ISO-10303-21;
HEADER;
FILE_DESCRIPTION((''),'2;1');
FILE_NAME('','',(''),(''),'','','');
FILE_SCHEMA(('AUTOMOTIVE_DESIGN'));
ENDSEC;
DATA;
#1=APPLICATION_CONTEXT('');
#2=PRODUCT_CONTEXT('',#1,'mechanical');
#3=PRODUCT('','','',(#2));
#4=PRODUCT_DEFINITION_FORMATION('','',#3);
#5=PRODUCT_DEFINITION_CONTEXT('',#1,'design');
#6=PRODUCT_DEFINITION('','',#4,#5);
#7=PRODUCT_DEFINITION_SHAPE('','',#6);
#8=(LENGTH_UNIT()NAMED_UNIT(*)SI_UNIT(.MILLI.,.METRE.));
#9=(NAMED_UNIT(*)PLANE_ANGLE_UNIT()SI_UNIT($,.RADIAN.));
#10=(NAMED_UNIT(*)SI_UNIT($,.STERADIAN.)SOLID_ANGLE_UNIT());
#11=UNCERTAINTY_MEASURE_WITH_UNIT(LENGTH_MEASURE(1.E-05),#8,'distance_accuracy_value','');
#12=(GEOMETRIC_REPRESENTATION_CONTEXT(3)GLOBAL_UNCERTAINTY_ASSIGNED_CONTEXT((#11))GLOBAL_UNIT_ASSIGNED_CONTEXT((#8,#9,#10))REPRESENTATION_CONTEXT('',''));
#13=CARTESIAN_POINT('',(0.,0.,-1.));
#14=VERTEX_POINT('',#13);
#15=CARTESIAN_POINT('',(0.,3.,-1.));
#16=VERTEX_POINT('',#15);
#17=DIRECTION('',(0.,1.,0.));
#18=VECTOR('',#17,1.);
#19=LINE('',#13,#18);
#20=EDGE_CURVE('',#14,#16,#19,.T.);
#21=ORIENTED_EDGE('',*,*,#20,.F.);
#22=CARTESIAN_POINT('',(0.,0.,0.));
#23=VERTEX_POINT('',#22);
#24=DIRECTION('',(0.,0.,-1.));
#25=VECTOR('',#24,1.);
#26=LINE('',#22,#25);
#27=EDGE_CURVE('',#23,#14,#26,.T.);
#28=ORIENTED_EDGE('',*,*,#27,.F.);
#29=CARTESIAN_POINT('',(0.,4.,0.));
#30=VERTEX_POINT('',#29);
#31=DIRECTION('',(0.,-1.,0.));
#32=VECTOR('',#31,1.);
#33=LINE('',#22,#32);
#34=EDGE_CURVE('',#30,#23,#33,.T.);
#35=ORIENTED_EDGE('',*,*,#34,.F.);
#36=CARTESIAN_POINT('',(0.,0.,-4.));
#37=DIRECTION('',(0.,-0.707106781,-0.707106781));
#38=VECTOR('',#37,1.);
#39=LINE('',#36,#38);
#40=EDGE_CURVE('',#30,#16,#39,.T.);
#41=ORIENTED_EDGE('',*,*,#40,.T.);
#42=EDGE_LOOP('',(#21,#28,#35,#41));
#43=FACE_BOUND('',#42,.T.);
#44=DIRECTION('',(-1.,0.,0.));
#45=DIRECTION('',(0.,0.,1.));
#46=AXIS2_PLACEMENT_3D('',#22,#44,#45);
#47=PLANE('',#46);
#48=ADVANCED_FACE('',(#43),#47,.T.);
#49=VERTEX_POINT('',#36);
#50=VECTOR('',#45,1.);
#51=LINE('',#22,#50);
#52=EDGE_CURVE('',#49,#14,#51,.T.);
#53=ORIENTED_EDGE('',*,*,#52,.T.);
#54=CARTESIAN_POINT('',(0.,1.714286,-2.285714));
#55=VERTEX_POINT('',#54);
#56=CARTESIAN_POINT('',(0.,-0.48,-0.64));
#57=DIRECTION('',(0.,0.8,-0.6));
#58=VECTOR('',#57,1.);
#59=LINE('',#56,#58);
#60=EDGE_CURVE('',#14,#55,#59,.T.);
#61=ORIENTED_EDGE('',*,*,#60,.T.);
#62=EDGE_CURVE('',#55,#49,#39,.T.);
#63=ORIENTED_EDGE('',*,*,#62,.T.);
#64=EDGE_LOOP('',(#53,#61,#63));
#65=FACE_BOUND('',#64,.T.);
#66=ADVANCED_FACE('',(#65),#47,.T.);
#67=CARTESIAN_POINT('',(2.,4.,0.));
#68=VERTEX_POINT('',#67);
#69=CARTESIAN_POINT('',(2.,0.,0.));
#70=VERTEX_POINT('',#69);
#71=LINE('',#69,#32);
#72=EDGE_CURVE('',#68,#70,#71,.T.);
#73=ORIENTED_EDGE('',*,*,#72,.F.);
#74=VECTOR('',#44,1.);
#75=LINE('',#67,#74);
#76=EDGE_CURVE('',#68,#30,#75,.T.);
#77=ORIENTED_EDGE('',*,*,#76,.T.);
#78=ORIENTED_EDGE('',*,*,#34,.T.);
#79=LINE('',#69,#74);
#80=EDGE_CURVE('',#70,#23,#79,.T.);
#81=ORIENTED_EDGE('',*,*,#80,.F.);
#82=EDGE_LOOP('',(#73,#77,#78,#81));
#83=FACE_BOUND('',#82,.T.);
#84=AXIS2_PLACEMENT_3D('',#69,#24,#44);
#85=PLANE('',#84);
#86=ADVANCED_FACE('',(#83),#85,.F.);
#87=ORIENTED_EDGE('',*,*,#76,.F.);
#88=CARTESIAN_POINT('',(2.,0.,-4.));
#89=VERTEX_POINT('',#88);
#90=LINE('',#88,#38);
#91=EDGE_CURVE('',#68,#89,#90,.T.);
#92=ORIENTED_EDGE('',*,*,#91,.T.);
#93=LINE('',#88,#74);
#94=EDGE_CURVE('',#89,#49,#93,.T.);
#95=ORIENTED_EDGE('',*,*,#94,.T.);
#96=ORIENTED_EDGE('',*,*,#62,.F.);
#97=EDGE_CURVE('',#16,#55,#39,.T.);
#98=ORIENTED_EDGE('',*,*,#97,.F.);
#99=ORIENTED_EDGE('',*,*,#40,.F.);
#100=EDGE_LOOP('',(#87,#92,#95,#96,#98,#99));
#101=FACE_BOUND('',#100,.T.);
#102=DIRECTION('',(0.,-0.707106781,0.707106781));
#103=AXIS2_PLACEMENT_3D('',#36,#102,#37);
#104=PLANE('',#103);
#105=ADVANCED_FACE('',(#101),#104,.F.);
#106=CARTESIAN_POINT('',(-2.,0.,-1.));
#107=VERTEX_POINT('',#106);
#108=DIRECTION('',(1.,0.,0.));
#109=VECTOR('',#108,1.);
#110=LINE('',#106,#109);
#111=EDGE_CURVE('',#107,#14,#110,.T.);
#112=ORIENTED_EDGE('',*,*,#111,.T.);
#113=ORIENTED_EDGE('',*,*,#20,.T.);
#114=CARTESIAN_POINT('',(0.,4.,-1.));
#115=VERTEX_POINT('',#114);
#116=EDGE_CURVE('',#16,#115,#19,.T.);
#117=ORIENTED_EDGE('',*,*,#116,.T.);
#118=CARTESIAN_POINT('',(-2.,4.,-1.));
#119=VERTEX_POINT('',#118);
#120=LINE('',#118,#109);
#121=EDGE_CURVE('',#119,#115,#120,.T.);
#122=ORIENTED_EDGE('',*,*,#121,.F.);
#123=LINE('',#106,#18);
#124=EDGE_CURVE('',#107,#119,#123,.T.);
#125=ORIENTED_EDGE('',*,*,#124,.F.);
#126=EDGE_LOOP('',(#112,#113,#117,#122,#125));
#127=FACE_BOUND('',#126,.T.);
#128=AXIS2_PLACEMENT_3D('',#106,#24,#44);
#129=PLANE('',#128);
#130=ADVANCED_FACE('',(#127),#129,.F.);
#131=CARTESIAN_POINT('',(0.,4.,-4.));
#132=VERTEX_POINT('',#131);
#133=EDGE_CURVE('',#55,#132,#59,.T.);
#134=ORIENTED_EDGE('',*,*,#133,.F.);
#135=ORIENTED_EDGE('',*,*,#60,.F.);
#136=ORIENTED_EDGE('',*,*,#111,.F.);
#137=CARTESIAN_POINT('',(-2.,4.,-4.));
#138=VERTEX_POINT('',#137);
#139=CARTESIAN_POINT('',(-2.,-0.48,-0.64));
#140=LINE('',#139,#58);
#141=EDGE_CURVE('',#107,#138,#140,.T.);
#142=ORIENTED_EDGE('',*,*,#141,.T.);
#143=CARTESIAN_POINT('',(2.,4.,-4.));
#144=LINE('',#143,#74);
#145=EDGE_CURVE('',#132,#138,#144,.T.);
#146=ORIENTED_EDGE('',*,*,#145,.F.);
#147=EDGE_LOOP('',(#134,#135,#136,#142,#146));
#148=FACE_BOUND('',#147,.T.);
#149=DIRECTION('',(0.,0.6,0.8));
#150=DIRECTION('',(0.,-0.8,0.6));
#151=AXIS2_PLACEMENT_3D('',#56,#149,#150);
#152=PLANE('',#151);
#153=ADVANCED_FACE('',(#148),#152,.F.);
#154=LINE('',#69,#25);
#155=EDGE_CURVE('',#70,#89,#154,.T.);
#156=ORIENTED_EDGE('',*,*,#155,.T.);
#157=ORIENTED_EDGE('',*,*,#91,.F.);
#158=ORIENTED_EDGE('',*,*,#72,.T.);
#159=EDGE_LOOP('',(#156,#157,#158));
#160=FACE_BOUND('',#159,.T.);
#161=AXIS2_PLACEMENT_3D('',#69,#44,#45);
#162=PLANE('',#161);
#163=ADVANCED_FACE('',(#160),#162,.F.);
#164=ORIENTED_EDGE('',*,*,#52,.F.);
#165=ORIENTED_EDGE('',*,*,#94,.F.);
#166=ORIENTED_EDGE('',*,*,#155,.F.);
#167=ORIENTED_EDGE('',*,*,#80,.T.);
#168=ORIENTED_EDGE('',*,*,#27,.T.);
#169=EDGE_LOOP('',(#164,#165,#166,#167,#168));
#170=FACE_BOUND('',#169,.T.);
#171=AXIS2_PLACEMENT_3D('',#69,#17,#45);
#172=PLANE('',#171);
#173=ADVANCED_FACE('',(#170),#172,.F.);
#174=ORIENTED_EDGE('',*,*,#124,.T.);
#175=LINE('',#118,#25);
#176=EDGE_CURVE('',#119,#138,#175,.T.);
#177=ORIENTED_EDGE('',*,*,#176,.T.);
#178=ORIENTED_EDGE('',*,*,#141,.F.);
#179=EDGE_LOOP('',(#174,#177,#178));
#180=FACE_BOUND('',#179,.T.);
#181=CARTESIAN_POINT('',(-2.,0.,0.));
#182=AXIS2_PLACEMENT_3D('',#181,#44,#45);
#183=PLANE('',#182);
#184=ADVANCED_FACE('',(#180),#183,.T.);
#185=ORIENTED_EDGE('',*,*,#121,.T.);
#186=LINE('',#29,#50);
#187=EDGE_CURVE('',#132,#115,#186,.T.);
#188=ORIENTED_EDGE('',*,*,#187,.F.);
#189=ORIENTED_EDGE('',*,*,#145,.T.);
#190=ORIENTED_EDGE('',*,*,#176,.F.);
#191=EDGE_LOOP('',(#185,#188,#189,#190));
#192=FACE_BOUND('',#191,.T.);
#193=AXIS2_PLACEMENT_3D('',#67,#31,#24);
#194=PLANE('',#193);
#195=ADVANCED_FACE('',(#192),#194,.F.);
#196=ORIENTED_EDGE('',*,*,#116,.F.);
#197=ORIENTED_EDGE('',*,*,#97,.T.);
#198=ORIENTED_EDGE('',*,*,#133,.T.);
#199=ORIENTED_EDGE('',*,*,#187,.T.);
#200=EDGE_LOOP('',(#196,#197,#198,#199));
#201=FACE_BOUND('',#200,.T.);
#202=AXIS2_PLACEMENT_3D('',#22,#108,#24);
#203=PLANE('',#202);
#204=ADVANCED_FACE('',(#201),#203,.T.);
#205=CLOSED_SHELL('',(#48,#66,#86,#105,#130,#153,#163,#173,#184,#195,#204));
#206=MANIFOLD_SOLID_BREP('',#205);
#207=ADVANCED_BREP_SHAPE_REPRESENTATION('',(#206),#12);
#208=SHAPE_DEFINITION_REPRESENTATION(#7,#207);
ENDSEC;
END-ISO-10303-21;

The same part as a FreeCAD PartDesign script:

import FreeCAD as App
import Part
import Sketcher
from FreeCAD import Vector
Q = App.Units.Quantity

doc = App.newDocument("Part")
body = doc.addObject("PartDesign::Body", "Body")

# Sketch on YZ plane
sketch1 = body.newObject("Sketcher::SketchObject", "Sketch")
sketch1.AttachmentSupport = (doc.getObject("YZ_Plane"), [""])
sketch1.MapMode = "FlatFace"
sketch1.addGeometry(Part.LineSegment(Vector(4, 0, 0), Vector(0, 0, 0)), False)
sketch1.addGeometry(Part.LineSegment(Vector(0, 0, 0), Vector(0, -4, 0)), False)
sketch1.addGeometry(Part.LineSegment(Vector(0, -4, 0), Vector(4, -4, 0)), False)
sketch1.addGeometry(Part.LineSegment(Vector(4, -4, 0), Vector(4, 0, 0)), False)
sketch1.addConstraint(Sketcher.Constraint("Coincident", 0, 2, 1, 1))
sketch1.addConstraint(Sketcher.Constraint("Coincident", 1, 2, 2, 1))
sketch1.addConstraint(Sketcher.Constraint("Coincident", 2, 2, 3, 1))
sketch1.addConstraint(Sketcher.Constraint("Coincident", 3, 2, 0, 1))
sketch1.addConstraint(Sketcher.Constraint("Horizontal", 0))
sketch1.addConstraint(Sketcher.Constraint("Vertical", 1))
sketch1.addConstraint(Sketcher.Constraint("Horizontal", 2))
sketch1.addConstraint(Sketcher.Constraint("Vertical", 3))
sketch1.addConstraint(Sketcher.Constraint("Coincident", 0, 2, -1, 1))
sketch1.addConstraint(Sketcher.Constraint("Equal", 2, 1))
sketch1.addConstraint(Sketcher.Constraint("DistanceX", 0, 2, 0, 1, Q("4 mm")))
pad1 = body.newObject("PartDesign::Pad", "Pad")
pad1.Profile = sketch1
pad1.Length = 2

# Sketch on YZ plane
sketch2 = body.newObject("Sketcher::SketchObject", "Sketch001")
sketch2.AttachmentSupport = (doc.getObject("YZ_Plane"), [""])
sketch2.MapMode = "FlatFace"
sketch2.addGeometry(Part.LineSegment(Vector(4, -4, 0), Vector(0, -4, 0)), False)
sketch2.addGeometry(Part.LineSegment(Vector(0, -4, 0), Vector(0, -1, 0)), False)
sketch2.addGeometry(Part.LineSegment(Vector(0, -1, 0), Vector(4, -1, 0)), False)
sketch2.addGeometry(Part.LineSegment(Vector(4, -1, 0), Vector(4, -4, 0)), False)
sketch2.addConstraint(Sketcher.Constraint("Coincident", 0, 2, 1, 1))
sketch2.addConstraint(Sketcher.Constraint("Coincident", 1, 2, 2, 1))
sketch2.addConstraint(Sketcher.Constraint("Coincident", 2, 2, 3, 1))
sketch2.addConstraint(Sketcher.Constraint("Coincident", 3, 2, 0, 1))
sketch2.addConstraint(Sketcher.Constraint("Horizontal", 0))
sketch2.addConstraint(Sketcher.Constraint("Vertical", 1))
sketch2.addConstraint(Sketcher.Constraint("Horizontal", 2))
sketch2.addConstraint(Sketcher.Constraint("Vertical", 3))
sketch2.addConstraint(Sketcher.Constraint("PointOnObject", 0, 2, -2))
sketch2.addConstraint(Sketcher.Constraint("DistanceX", 0, 2, 0, 1, Q("4 mm")))
sketch2.addConstraint(Sketcher.Constraint("DistanceY", 1, 1, 1, 2, Q("3 mm")))
sketch2.addConstraint(Sketcher.Constraint("DistanceY", 0, 2, -1, 1, Q("4 mm")))
pad2 = body.newObject("PartDesign::Pad", "Pad001")
pad2.Profile = sketch2
pad2.Length = 2
pad2.Reversed = True

# Sketch on YZ plane
sketch3 = body.newObject("Sketcher::SketchObject", "Sketch002")
sketch3.AttachmentSupport = (doc.getObject("YZ_Plane"), [""])
sketch3.MapMode = "FlatFace"
sketch3.AttachmentOffset = App.Placement(Vector(0, 0, 2), App.Rotation())
sketch3.addGeometry(Part.LineSegment(Vector(4, 0, 0), Vector(0, -4, 0)), False)
sketch3.addGeometry(Part.LineSegment(Vector(0, -4, 0), Vector(4, -4, 0)), False)
sketch3.addGeometry(Part.LineSegment(Vector(4, -4, 0), Vector(4, 0, 0)), False)
sketch3.addConstraint(Sketcher.Constraint("Coincident", 0, 2, 1, 1))
sketch3.addConstraint(Sketcher.Constraint("Coincident", 1, 2, 2, 1))
sketch3.addConstraint(Sketcher.Constraint("Coincident", 2, 2, 0, 1))
sketch3.addConstraint(Sketcher.Constraint("Horizontal", 1))
sketch3.addConstraint(Sketcher.Constraint("Vertical", 2))
sketch3.addConstraint(Sketcher.Constraint("PointOnObject", 0, 2, -2))
sketch3.addConstraint(Sketcher.Constraint("PointOnObject", 2, 2, -1))
sketch3.addConstraint(Sketcher.Constraint("Equal", 1, 2))
sketch3.addConstraint(Sketcher.Constraint("DistanceX", 1, 1, 1, 2, Q("4 mm")))
pocket1 = body.newObject("PartDesign::Pocket", "Pocket")
pocket1.Profile = sketch3
pocket1.Length = 2

# Sketch on YZ plane
sketch4 = body.newObject("Sketcher::SketchObject", "Sketch003")
sketch4.AttachmentSupport = (doc.getObject("YZ_Plane"), [""])
sketch4.MapMode = "FlatFace"
sketch4.AttachmentOffset = App.Placement(Vector(0, 0, -2), App.Rotation())
sketch4.addGeometry(Part.LineSegment(Vector(0, -1, 0), Vector(4, -4, 0)), False)
sketch4.addGeometry(Part.LineSegment(Vector(4, -4, 0), Vector(0, -4, 0)), False)
sketch4.addGeometry(Part.LineSegment(Vector(0, -4, 0), Vector(0, -1, 0)), False)
sketch4.addConstraint(Sketcher.Constraint("Coincident", 0, 2, 1, 1))
sketch4.addConstraint(Sketcher.Constraint("Coincident", 1, 2, 2, 1))
sketch4.addConstraint(Sketcher.Constraint("Coincident", 2, 2, 0, 1))
sketch4.addConstraint(Sketcher.Constraint("Horizontal", 1))
sketch4.addConstraint(Sketcher.Constraint("Vertical", 2))
sketch4.addConstraint(Sketcher.Constraint("PointOnObject", 1, 2, -2))
sketch4.addConstraint(Sketcher.Constraint("DistanceX", 1, 2, 1, 1, Q("4 mm")))
sketch4.addConstraint(Sketcher.Constraint("DistanceY", 2, 1, 2, 2, Q("3 mm")))
sketch4.addConstraint(Sketcher.Constraint("DistanceY", 0, 2, -1, 1, Q("4 mm")))
pocket2 = body.newObject("PartDesign::Pocket", "Pocket001")
pocket2.Profile = sketch4
pocket2.Length = 2
pocket2.Reversed = True

doc.recompute()
